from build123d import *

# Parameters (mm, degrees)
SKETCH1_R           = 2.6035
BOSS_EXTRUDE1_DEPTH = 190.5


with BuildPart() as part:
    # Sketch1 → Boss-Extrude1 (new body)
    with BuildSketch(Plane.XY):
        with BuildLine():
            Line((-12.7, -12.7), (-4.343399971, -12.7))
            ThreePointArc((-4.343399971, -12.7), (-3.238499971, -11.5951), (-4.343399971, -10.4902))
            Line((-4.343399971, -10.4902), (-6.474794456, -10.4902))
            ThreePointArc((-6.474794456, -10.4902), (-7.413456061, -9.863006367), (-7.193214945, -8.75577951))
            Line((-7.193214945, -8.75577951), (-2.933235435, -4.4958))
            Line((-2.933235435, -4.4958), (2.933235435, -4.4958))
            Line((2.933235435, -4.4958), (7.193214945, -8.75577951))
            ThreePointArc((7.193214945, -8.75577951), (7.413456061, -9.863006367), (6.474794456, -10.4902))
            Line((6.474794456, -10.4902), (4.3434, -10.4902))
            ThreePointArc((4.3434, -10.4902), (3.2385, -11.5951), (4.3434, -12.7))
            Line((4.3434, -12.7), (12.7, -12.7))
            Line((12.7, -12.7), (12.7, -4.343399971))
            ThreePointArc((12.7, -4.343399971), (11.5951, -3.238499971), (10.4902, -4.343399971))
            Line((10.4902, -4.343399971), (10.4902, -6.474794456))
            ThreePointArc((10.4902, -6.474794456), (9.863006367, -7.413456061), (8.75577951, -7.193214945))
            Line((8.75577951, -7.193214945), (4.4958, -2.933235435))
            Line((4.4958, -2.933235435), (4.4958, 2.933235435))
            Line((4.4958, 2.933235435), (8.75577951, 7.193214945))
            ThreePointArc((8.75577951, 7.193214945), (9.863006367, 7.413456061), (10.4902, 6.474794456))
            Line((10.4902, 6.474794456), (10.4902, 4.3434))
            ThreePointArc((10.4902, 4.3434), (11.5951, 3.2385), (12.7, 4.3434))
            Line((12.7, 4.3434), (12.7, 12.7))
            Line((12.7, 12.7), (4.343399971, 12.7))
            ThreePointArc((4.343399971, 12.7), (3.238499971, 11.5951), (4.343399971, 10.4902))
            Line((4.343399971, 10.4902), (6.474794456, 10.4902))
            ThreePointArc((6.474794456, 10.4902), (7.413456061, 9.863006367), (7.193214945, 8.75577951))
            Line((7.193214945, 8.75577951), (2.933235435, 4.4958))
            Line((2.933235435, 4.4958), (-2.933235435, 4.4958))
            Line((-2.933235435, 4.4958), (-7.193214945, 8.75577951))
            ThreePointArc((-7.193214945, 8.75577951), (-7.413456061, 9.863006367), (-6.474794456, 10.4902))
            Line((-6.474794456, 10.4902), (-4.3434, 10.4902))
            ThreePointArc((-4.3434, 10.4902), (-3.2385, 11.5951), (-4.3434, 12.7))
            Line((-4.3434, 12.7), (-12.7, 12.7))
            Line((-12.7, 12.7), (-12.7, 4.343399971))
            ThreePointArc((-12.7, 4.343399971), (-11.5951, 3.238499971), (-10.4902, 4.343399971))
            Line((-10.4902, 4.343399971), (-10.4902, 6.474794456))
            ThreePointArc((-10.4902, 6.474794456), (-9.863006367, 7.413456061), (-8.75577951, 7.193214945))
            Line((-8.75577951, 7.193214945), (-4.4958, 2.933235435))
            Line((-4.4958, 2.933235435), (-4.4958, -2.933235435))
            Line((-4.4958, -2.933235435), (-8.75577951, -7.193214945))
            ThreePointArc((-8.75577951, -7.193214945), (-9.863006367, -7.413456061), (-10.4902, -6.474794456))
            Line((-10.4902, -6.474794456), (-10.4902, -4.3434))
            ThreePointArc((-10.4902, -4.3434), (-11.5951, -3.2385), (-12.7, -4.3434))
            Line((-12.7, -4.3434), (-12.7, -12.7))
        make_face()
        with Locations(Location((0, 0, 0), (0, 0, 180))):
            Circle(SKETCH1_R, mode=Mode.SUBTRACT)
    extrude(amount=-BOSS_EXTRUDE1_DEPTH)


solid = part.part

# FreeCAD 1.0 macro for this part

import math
import FreeCAD as App
import Part
import Sketcher

V = App.Vector
Q = App.Units.Quantity

doc = App.newDocument("Part")
body = doc.addObject("PartDesign::Body", "Body")

# Sketch on XY plane
sketch1 = body.newObject("Sketcher::SketchObject", "Sketch")
sketch1.AttachmentSupport = (doc.getObject("XY_Plane"), [""])
sketch1.MapMode = "FlatFace"
sketch1.addGeometry([
    Part.LineSegment(V(-12.7, -12.7, 0), V(-4.3, -12.7, 0)),  # 0
    Part.ArcOfCircle(Part.Circle(V(-4.3, -11.6, 0), V(0, 0, 1), 1.1), math.radians(-90), math.radians(90)),  # 1
    Part.LineSegment(V(-4.3, -10.5, 0), V(-6.5, -10.5, 0)),  # 2
    Part.ArcOfCircle(Part.Circle(V(-6.5, -9.5, 0), V(0, 0, 1), 1), math.radians(135), math.radians(270)),  # 3
    Part.LineSegment(V(-7.2, -8.8, 0), V(-2.9, -4.5, 0)),  # 4
    Part.LineSegment(V(-2.9, -4.5, 0), V(2.9, -4.5, 0)),  # 5
    Part.LineSegment(V(2.9, -4.5, 0), V(7.2, -8.8, 0)),  # 6
    Part.ArcOfCircle(Part.Circle(V(6.5, -9.5, 0), V(0, 0, 1), 1), math.radians(-90), math.radians(45)),  # 7
    Part.LineSegment(V(6.5, -10.5, 0), V(4.3, -10.5, 0)),  # 8
    Part.ArcOfCircle(Part.Circle(V(4.3, -11.6, 0), V(0, 0, 1), 1.1), math.radians(90), math.radians(270)),  # 9
    Part.LineSegment(V(4.3, -12.7, 0), V(12.7, -12.7, 0)),  # 10
    Part.LineSegment(V(12.7, -12.7, 0), V(12.7, -4.3, 0)),  # 11
    Part.ArcOfCircle(Part.Circle(V(11.6, -4.3, 0), V(0, 0, 1), 1.1), math.radians(0), math.radians(180)),  # 12
    Part.LineSegment(V(10.5, -4.3, 0), V(10.5, -6.5, 0)),  # 13
    Part.ArcOfCircle(Part.Circle(V(9.5, -6.5, 0), V(0, 0, 1), 1), math.radians(-135), math.radians(0)),  # 14
    Part.LineSegment(V(8.8, -7.2, 0), V(4.5, -2.9, 0)),  # 15
    Part.LineSegment(V(4.5, -2.9, 0), V(4.5, 2.9, 0)),  # 16
    Part.LineSegment(V(4.5, 2.9, 0), V(8.8, 7.2, 0)),  # 17
    Part.ArcOfCircle(Part.Circle(V(9.5, 6.5, 0), V(0, 0, 1), 1), math.radians(0), math.radians(135)),  # 18
    Part.LineSegment(V(10.5, 6.5, 0), V(10.5, 4.3, 0)),  # 19
    Part.ArcOfCircle(Part.Circle(V(11.6, 4.3, 0), V(0, 0, 1), 1.1), math.radians(180), math.radians(360)),  # 20
    Part.LineSegment(V(12.7, 4.3, 0), V(12.7, 12.7, 0)),  # 21
    Part.LineSegment(V(12.7, 12.7, 0), V(4.3, 12.7, 0)),  # 22
    Part.ArcOfCircle(Part.Circle(V(4.3, 11.6, 0), V(0, 0, 1), 1.1), math.radians(90), math.radians(270)),  # 23
    Part.LineSegment(V(4.3, 10.5, 0), V(6.5, 10.5, 0)),  # 24
    Part.ArcOfCircle(Part.Circle(V(6.5, 9.5, 0), V(0, 0, 1), 1), math.radians(-45), math.radians(90)),  # 25
    Part.LineSegment(V(7.2, 8.8, 0), V(2.9, 4.5, 0)),  # 26
    Part.LineSegment(V(2.9, 4.5, 0), V(-2.9, 4.5, 0)),  # 27
    Part.LineSegment(V(-2.9, 4.5, 0), V(-7.2, 8.8, 0)),  # 28
    Part.ArcOfCircle(Part.Circle(V(-6.5, 9.5, 0), V(0, 0, 1), 1), math.radians(90), math.radians(225)),  # 29
    Part.LineSegment(V(-6.5, 10.5, 0), V(-4.3, 10.5, 0)),  # 30
    Part.ArcOfCircle(Part.Circle(V(-4.3, 11.6, 0), V(0, 0, 1), 1.1), math.radians(-90), math.radians(90)),  # 31
    Part.LineSegment(V(-4.3, 12.7, 0), V(-12.7, 12.7, 0)),  # 32
    Part.LineSegment(V(-12.7, 12.7, 0), V(-12.7, 4.3, 0)),  # 33
    Part.ArcOfCircle(Part.Circle(V(-11.6, 4.3, 0), V(0, 0, 1), 1.1), math.radians(180), math.radians(360)),  # 34
    Part.LineSegment(V(-10.5, 4.3, 0), V(-10.5, 6.5, 0)),  # 35
    Part.ArcOfCircle(Part.Circle(V(-9.5, 6.5, 0), V(0, 0, 1), 1), math.radians(45), math.radians(180)),  # 36
    Part.LineSegment(V(-8.8, 7.2, 0), V(-4.5, 2.9, 0)),  # 37
    Part.LineSegment(V(-4.5, 2.9, 0), V(-4.5, -2.9, 0)),  # 38
    Part.LineSegment(V(-4.5, -2.9, 0), V(-8.8, -7.2, 0)),  # 39
    Part.ArcOfCircle(Part.Circle(V(-9.5, -6.5, 0), V(0, 0, 1), 1), math.radians(180), math.radians(315)),  # 40
    Part.LineSegment(V(-10.5, -6.5, 0), V(-10.5, -4.3, 0)),  # 41
    Part.ArcOfCircle(Part.Circle(V(-11.6, -4.3, 0), V(0, 0, 1), 1.1), math.radians(0), math.radians(180)),  # 42
    Part.LineSegment(V(-12.7, -4.3, 0), V(-12.7, -12.7, 0)),  # 43
    Part.Circle(V(0, 0, 0), V(0, 0, 1), 2.6),  # 44
], False)
sketch1.addConstraint([
    Sketcher.Constraint("Tangent", 0, 2, 1, 1),
    Sketcher.Constraint("Tangent", 1, 2, 2, 1),
    Sketcher.Constraint("Tangent", 2, 2, 3, 2),
    Sketcher.Constraint("Tangent", 3, 1, 4, 1),
    Sketcher.Constraint("Coincident", 4, 2, 5, 1),
    Sketcher.Constraint("Coincident", 5, 2, 6, 1),
    Sketcher.Constraint("Tangent", 6, 2, 7, 2),
    Sketcher.Constraint("Tangent", 7, 1, 8, 1),
    Sketcher.Constraint("Tangent", 8, 2, 9, 1),
    Sketcher.Constraint("Tangent", 9, 2, 10, 1),
    Sketcher.Constraint("Coincident", 10, 2, 11, 1),
    Sketcher.Constraint("Tangent", 11, 2, 12, 1),
    Sketcher.Constraint("Tangent", 12, 2, 13, 1),
    Sketcher.Constraint("Tangent", 13, 2, 14, 2),
    Sketcher.Constraint("Tangent", 14, 1, 15, 1),
    Sketcher.Constraint("Coincident", 15, 2, 16, 1),
    Sketcher.Constraint("Coincident", 16, 2, 17, 1),
    Sketcher.Constraint("Tangent", 17, 2, 18, 2),
    Sketcher.Constraint("Tangent", 18, 1, 19, 1),
    Sketcher.Constraint("Tangent", 19, 2, 20, 1),
    Sketcher.Constraint("Tangent", 20, 2, 21, 1),
    Sketcher.Constraint("Coincident", 21, 2, 22, 1),
    Sketcher.Constraint("Tangent", 22, 2, 23, 1),
    Sketcher.Constraint("Tangent", 23, 2, 24, 1),
    Sketcher.Constraint("Tangent", 24, 2, 25, 2),
    Sketcher.Constraint("Tangent", 25, 1, 26, 1),
    Sketcher.Constraint("Coincident", 26, 2, 27, 1),
    Sketcher.Constraint("Coincident", 27, 2, 28, 1),
    Sketcher.Constraint("Tangent", 28, 2, 29, 2),
    Sketcher.Constraint("Tangent", 29, 1, 30, 1),
    Sketcher.Constraint("Tangent", 30, 2, 31, 1),
    Sketcher.Constraint("Tangent", 31, 2, 32, 1),
    Sketcher.Constraint("Coincident", 32, 2, 33, 1),
    Sketcher.Constraint("Tangent", 33, 2, 34, 1),
    Sketcher.Constraint("Tangent", 34, 2, 35, 1),
    Sketcher.Constraint("Tangent", 35, 2, 36, 2),
    Sketcher.Constraint("Tangent", 36, 1, 37, 1),
    Sketcher.Constraint("Coincident", 37, 2, 38, 1),
    Sketcher.Constraint("Coincident", 38, 2, 39, 1),
    Sketcher.Constraint("Tangent", 39, 2, 40, 2),
    Sketcher.Constraint("Tangent", 40, 1, 41, 1),
    Sketcher.Constraint("Tangent", 41, 2, 42, 1),
    Sketcher.Constraint("Tangent", 42, 2, 43, 1),
    Sketcher.Constraint("Coincident", 43, 2, 0, 1),
    Sketcher.Constraint("Horizontal", 0),
    Sketcher.Constraint("Horizontal", 2),
    Sketcher.Constraint("Horizontal", 5),
    Sketcher.Constraint("Horizontal", 8),
    Sketcher.Constraint("Horizontal", 10),
    Sketcher.Constraint("Vertical", 11),
    Sketcher.Constraint("Vertical", 13),
    Sketcher.Constraint("Vertical", 16),
    Sketcher.Constraint("Vertical", 19),
    Sketcher.Constraint("Vertical", 21),
    Sketcher.Constraint("Horizontal", 22),
    Sketcher.Constraint("Horizontal", 24),
    Sketcher.Constraint("Horizontal", 27),
    Sketcher.Constraint("Horizontal", 30),
    Sketcher.Constraint("Horizontal", 32),
    Sketcher.Constraint("Vertical", 33),
    Sketcher.Constraint("Vertical", 35),
    Sketcher.Constraint("Vertical", 38),
    Sketcher.Constraint("Vertical", 41),
    Sketcher.Constraint("Vertical", 43),
    Sketcher.Constraint("Coincident", 44, 3, -1, 1),
    Sketcher.Constraint("Equal", 3, 7),
    Sketcher.Constraint("Equal", 1, 9),
    Sketcher.Constraint("Equal", 9, 12),
    Sketcher.Constraint("Equal", 7, 14),
    Sketcher.Constraint("Equal", 14, 18),
    Sketcher.Constraint("Equal", 12, 20),
    Sketcher.Constraint("Equal", 20, 23),
    Sketcher.Constraint("Equal", 18, 25),
    Sketcher.Constraint("Equal", 25, 29),
    Sketcher.Constraint("Equal", 23, 31),
    Sketcher.Constraint("Equal", 31, 34),
    Sketcher.Constraint("Equal", 29, 36),
    Sketcher.Constraint("Equal", 36, 40),
    Sketcher.Constraint("Equal", 34, 42),
    Sketcher.Constraint("Symmetric", 1, 3, 23, 3, -1, 1),
    Sketcher.Constraint("Symmetric", 7, 3, 29, 3, -1, 1),
    Sketcher.Constraint("Symmetric", 12, 3, 34, 3, -1, 1),
    Sketcher.Constraint("Symmetric", 18, 3, 40, 3, -1, 1),
    Sketcher.Constraint("Symmetric", 3, 1, 25, 1, -1, 1),
    Sketcher.Constraint("Symmetric", 5, 2, 27, 2, -1, 1),
    Sketcher.Constraint("Symmetric", 14, 1, 36, 1, -1, 1),
    Sketcher.Constraint("Symmetric", 16, 2, 38, 2, -1, 1),
    Sketcher.Constraint("Symmetric", 3, 3, 7, 3, -2),
    Sketcher.Constraint("Symmetric", 20, 3, 34, 3, -2),
    Sketcher.Constraint("Symmetric", 17, 2, 36, 1, -2),
    Sketcher.Constraint("Perpendicular", 4, 6),
    Sketcher.Constraint("Parallel", 6, 15),
    Sketcher.Constraint("Perpendicular", 15, 17),
    Sketcher.Constraint("Horizontal", 12, 3, 42, 3),
    Sketcher.Constraint("Vertical", 9, 3, 23, 3),
    Sketcher.Constraint("Vertical", 1, 3, 31, 3),
    Sketcher.Constraint("Equal", 32, 11),
    Sketcher.Constraint("Equal", 30, 13),
    Sketcher.Constraint("Equal", 27, 16),
    Sketcher.Constraint("Equal", 6, 15),
    Sketcher.Constraint("Radius", 3, Q("0.04 in")),
    Sketcher.Constraint("Diameter", 44, Q("0.205 in")),
    Sketcher.Constraint("DistanceY", 0, 2, -1, 1, Q("0.5 in")),
    Sketcher.Constraint("Radius", 1, Q("0.0435 in")),
    Sketcher.Constraint("DistanceX", 0, 1, 0, 2, Q("0.329 in")),
    Sketcher.Constraint("DistanceY", 4, 2, -1, 1, Q("0.177 in")),
    Sketcher.Constraint("DistanceX", 5, 1, 5, 2, Q("5.866471 mm")),
])
pad1 = body.newObject("PartDesign::Pad", "Pad")
pad1.Profile = sketch1
pad1.Length = Q("7.5 in")
pad1.Reversed = True

doc.recompute()
